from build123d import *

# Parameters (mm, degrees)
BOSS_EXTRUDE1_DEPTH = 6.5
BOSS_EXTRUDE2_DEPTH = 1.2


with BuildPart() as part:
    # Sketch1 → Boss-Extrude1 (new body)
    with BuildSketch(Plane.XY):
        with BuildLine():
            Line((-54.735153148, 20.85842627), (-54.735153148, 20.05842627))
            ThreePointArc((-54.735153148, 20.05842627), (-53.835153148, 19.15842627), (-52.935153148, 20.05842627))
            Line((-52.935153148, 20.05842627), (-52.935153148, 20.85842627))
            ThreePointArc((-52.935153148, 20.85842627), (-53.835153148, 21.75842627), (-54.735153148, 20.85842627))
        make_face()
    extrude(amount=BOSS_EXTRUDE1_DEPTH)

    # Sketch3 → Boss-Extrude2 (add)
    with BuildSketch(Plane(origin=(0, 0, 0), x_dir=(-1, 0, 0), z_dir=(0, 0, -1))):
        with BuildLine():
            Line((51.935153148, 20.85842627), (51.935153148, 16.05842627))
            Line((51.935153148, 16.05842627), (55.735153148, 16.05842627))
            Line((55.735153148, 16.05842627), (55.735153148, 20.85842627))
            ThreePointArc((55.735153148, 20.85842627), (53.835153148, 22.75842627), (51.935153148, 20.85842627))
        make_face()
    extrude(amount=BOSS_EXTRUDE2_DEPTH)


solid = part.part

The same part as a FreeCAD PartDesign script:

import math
import FreeCAD as App
import Part
import Sketcher

doc = App.newDocument("Part")
body = doc.addObject("PartDesign::Body", "Body")

# Sketch on XY plane
sketch1 = body.newObject("Sketcher::SketchObject", "Sketch")
sketch1.AttachmentSupport = (doc.getObject("XY_Plane"), [""])
sketch1.MapMode = "FlatFace"
sketch1.addGeometry([
    Part.LineSegment(App.Vector(-54.7, 20.9, 0), App.Vector(-54.7, 20.1, 0)),
    Part.ArcOfCircle(Part.Circle(App.Vector(-53.8, 20.1, 0), App.Vector(0, 0, 1), 0.9), math.radians(180), math.radians(360)),
    Part.LineSegment(App.Vector(-52.9, 20.1, 0), App.Vector(-52.9, 20.9, 0)),
    Part.ArcOfCircle(Part.Circle(App.Vector(-53.8, 20.9, 0), App.Vector(0, 0, 1), 0.9), math.radians(0), math.radians(180)),
], False)
sketch1.addConstraint([
    Sketcher.Constraint("Tangent", 0, 2, 1, 1),
    Sketcher.Constraint("Tangent", 1, 2, 2, 1),
    Sketcher.Constraint("Tangent", 2, 2, 3, 1),
    Sketcher.Constraint("Tangent", 3, 2, 0, 1),
    Sketcher.Constraint("Vertical", 0),
    Sketcher.Constraint("Vertical", 2),
    Sketcher.Constraint("Radius", 1, 0.9),
    Sketcher.Constraint("DistanceY", 0, 2, 0, 1, 0.8),
    Sketcher.Constraint("DistanceX", 1, 3, -1, 1, 53.835153),
    Sketcher.Constraint("DistanceY", -1, 1, 1, 3, 20.058426),
])
pad1 = body.newObject("PartDesign::Pad", "Pad")
pad1.Profile = sketch1
pad1.Length = 6.5

# Sketch on XY plane
sketch2 = body.newObject("Sketcher::SketchObject", "Sketch001")
sketch2.AttachmentSupport = (doc.getObject("XY_Plane"), [""])
sketch2.MapMode = "FlatFace"
sketch2.addGeometry([
    Part.LineSegment(App.Vector(-51.9, 20.9, 0), App.Vector(-51.9, 16.1, 0)),
    Part.LineSegment(App.Vector(-51.9, 16.1, 0), App.Vector(-55.7, 16.1, 0)),
    Part.LineSegment(App.Vector(-55.7, 16.1, 0), App.Vector(-55.7, 20.9, 0)),
    Part.ArcOfCircle(Part.Circle(App.Vector(-53.8, 20.9, 0), App.Vector(0, 0, 1), 1.9), math.radians(0), math.radians(180)),
], False)
sketch2.addConstraint([
    Sketcher.Constraint("Coincident", 0, 2, 1, 1),
    Sketcher.Constraint("Coincident", 1, 2, 2, 1),
    Sketcher.Constraint("Tangent", 2, 2, 3, 2),
    Sketcher.Constraint("Tangent", 3, 1, 0, 1),
    Sketcher.Constraint("Vertical", 0),
    Sketcher.Constraint("Horizontal", 1),
    Sketcher.Constraint("Vertical", 2),
    Sketcher.Constraint("Radius", 3, 1.9),
    Sketcher.Constraint("DistanceY", 0, 2, 0, 1, 4.8),
    Sketcher.Constraint("DistanceX", 3, 3, -1, 1, 53.835153),
    Sketcher.Constraint("DistanceY", -1, 1, 3, 3, 20.858426),
])
pad2 = body.newObject("PartDesign::Pad", "Pad001")
pad2.Profile = sketch2
pad2.Length = 1.2
pad2.Reversed = True

doc.recompute()
